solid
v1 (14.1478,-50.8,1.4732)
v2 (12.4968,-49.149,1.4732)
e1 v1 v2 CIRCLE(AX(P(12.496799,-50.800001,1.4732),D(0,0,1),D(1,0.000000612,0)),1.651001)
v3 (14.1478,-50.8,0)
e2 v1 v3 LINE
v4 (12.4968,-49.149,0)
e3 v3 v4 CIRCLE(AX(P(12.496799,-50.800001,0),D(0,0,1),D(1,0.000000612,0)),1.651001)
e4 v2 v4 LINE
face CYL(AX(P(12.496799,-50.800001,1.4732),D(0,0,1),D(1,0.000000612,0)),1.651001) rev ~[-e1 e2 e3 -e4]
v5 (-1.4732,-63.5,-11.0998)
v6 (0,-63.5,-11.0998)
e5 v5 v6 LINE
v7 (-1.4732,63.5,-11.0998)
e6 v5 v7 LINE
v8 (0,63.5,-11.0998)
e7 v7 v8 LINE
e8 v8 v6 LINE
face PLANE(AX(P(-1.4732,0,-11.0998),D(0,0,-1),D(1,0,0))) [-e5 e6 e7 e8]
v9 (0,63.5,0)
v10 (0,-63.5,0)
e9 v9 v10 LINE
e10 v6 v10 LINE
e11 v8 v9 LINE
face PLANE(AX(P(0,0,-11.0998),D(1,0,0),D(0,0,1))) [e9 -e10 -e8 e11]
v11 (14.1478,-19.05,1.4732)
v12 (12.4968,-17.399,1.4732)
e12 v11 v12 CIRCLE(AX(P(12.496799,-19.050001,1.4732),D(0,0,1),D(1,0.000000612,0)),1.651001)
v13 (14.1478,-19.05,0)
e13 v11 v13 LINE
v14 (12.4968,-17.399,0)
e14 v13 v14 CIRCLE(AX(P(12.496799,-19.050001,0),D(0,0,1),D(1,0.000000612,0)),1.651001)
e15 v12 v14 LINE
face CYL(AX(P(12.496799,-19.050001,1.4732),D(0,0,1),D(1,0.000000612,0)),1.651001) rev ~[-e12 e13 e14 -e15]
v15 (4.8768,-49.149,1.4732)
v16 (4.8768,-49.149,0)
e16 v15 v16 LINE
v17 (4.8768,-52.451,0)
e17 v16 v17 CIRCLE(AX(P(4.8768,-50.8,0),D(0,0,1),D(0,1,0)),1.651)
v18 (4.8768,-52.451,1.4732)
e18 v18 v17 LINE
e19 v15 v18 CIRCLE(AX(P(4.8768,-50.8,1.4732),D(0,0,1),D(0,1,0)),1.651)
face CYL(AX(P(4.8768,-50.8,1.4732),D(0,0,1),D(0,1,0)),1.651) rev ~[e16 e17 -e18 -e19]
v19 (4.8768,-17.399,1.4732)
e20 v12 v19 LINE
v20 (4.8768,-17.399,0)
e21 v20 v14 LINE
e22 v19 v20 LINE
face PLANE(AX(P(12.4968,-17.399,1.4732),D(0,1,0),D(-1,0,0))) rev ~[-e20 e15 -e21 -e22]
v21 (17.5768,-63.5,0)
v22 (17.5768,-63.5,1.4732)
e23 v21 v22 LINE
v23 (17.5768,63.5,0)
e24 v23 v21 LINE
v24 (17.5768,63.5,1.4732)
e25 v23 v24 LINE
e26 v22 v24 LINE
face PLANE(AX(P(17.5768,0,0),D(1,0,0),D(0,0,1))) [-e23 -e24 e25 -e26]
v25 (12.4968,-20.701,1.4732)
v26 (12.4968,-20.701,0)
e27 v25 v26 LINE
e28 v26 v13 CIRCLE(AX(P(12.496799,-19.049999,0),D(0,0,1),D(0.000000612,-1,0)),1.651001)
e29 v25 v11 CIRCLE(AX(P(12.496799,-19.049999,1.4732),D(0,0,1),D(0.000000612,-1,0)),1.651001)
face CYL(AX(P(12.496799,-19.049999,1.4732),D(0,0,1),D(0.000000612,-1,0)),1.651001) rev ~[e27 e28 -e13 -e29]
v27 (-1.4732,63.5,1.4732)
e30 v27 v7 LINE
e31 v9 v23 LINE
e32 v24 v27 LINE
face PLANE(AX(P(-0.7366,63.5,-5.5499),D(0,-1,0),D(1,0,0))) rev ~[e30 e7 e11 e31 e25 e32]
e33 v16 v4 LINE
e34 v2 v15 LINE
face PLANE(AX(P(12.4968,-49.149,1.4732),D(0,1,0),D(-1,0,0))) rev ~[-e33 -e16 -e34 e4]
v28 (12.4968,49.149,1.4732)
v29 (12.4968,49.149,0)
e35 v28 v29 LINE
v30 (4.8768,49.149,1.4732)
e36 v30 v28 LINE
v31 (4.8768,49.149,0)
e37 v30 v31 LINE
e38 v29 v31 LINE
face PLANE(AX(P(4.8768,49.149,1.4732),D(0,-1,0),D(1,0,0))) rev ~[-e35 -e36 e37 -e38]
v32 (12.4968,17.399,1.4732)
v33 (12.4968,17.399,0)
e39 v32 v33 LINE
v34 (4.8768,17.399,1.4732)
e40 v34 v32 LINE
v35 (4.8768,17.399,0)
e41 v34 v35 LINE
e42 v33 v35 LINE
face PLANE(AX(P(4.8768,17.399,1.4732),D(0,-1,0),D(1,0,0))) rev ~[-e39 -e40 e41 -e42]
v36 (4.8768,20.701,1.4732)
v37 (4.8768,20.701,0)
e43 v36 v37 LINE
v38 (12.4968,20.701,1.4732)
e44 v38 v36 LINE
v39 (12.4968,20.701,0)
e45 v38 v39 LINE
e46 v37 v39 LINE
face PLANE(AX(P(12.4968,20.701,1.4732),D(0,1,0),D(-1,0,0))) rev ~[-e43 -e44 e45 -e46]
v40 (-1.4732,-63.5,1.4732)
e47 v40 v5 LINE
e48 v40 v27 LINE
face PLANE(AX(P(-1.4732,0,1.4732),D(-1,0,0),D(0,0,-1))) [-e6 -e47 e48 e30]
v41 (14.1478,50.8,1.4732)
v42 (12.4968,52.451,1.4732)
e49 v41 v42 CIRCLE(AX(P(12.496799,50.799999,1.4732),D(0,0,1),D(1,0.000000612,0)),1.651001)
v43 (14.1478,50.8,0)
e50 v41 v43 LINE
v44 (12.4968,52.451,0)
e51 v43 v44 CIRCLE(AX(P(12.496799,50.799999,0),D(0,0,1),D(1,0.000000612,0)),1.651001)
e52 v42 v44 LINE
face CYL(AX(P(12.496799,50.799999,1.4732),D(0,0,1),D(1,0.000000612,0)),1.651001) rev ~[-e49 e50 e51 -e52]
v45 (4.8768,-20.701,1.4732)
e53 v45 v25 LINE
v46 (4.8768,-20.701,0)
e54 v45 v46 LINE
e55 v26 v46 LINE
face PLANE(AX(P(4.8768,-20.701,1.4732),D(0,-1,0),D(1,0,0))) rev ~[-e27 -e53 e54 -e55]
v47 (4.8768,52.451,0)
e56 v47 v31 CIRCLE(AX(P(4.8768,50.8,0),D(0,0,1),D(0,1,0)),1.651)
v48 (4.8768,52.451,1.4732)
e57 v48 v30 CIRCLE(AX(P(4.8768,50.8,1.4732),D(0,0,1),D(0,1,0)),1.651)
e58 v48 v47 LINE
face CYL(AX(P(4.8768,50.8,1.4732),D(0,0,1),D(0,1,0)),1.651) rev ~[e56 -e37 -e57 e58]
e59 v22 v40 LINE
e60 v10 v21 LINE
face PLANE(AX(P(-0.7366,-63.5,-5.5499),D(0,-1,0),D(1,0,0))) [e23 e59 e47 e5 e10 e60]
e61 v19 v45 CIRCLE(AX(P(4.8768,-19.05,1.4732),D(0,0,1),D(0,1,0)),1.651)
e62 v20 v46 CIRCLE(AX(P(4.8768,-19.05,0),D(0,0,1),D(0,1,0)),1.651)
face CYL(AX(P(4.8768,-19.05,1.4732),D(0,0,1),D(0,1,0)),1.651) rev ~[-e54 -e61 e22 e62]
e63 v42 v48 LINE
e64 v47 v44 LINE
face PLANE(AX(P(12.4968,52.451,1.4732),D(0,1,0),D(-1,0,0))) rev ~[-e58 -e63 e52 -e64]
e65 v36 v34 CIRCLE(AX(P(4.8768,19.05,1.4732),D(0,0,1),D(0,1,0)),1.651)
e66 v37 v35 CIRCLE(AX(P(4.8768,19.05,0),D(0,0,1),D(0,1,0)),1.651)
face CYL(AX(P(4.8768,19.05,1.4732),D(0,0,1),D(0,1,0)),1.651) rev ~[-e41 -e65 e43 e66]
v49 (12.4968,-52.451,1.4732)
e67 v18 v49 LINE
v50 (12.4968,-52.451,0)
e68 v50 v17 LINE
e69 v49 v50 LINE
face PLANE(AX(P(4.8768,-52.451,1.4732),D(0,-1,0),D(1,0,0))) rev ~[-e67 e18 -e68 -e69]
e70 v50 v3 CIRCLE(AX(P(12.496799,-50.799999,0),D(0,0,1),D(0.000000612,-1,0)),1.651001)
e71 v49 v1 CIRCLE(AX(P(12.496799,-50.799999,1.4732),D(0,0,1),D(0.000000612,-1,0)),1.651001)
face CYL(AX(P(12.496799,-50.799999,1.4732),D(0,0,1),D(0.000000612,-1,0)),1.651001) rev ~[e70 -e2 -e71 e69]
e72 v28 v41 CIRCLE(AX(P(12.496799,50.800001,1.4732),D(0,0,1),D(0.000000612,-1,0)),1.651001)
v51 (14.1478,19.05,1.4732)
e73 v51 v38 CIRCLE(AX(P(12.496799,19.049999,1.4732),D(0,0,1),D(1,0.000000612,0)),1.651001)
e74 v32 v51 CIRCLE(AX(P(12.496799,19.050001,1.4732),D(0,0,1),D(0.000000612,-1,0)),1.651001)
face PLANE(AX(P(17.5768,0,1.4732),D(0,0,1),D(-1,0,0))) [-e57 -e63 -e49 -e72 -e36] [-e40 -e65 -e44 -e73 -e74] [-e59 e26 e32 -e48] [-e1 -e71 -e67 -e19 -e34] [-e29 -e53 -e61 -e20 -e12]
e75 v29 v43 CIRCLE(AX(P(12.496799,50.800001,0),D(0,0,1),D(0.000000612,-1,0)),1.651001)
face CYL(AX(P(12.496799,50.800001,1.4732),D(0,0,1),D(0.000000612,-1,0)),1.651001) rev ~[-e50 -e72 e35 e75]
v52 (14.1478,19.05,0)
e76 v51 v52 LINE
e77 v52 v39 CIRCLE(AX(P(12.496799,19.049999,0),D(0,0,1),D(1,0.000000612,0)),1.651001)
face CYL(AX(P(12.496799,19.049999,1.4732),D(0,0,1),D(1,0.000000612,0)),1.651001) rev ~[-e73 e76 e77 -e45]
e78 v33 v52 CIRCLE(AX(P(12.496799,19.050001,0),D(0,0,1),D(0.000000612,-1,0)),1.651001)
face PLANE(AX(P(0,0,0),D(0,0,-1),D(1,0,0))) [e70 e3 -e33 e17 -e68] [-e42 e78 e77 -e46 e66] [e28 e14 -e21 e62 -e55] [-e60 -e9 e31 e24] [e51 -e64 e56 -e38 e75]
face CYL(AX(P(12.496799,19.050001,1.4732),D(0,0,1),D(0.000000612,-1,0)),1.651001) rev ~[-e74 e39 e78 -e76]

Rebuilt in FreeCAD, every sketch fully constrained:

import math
import FreeCAD as App
import Part
import Sketcher
Q = App.Units.Quantity

doc = App.newDocument("Part")
body = doc.addObject("PartDesign::Body", "Body")

# Sketch on XZ plane
sketch1 = doc.addObject("Sketcher::SketchObject", "Sketch")
body.addObject(sketch1)
sketch1.AttachmentSupport = (doc.XZ_Plane, [""])
sketch1.MapMode = "FlatFace"
sketch1.addGeometry(Part.LineSegment(App.Vector(-1.5, -11.1, 0), App.Vector(0, -11.1, 0)), False)
sketch1.addGeometry(Part.LineSegment(App.Vector(0, -11.1, 0), App.Vector(0, 0, 0)), False)
sketch1.addGeometry(Part.LineSegment(App.Vector(0, 0, 0), App.Vector(17.6, 0, 0)), False)
sketch1.addGeometry(Part.LineSegment(App.Vector(17.6, 0, 0), App.Vector(17.6, 1.5, 0)), False)
sketch1.addGeometry(Part.LineSegment(App.Vector(17.6, 1.5, 0), App.Vector(-1.5, 1.5, 0)), False)
sketch1.addGeometry(Part.LineSegment(App.Vector(-1.5, 1.5, 0), App.Vector(-1.5, -11.1, 0)), False)
sketch1.addConstraint(Sketcher.Constraint("Coincident", 0, 2, 1, 1))
sketch1.addConstraint(Sketcher.Constraint("Coincident", 1, 2, 2, 1))
sketch1.addConstraint(Sketcher.Constraint("Coincident", 2, 2, 3, 1))
sketch1.addConstraint(Sketcher.Constraint("Coincident", 3, 2, 4, 1))
sketch1.addConstraint(Sketcher.Constraint("Coincident", 4, 2, 5, 1))
sketch1.addConstraint(Sketcher.Constraint("Coincident", 5, 2, 0, 1))
sketch1.addConstraint(Sketcher.Constraint("Horizontal", 0))
sketch1.addConstraint(Sketcher.Constraint("Vertical", 1))
sketch1.addConstraint(Sketcher.Constraint("Horizontal", 2))
sketch1.addConstraint(Sketcher.Constraint("Vertical", 3))
sketch1.addConstraint(Sketcher.Constraint("Horizontal", 4))
sketch1.addConstraint(Sketcher.Constraint("Vertical", 5))
sketch1.addConstraint(Sketcher.Constraint("Coincident", 1, 2, -1, 1))
sketch1.addConstraint(Sketcher.Constraint("Equal", 0, 3))
sketch1.addConstraint(Sketcher.Constraint("DistanceX", 4, 2, 4, 1, Q("0.75 in")))
sketch1.addConstraint(Sketcher.Constraint("DistanceX", 0, 1, 0, 2, Q("0.058 in")))
sketch1.addConstraint(Sketcher.Constraint("DistanceY", 1, 1, 1, 2, Q("0.437 in")))
pad1 = doc.addObject("PartDesign::Pad", "Pad")
body.addObject(pad1)
pad1.Profile = sketch1
pad1.Length = Q("5 in")
pad1.Midplane = True

# Sketch on XY plane
sketch2 = doc.addObject("Sketcher::SketchObject", "Sketch001")
body.addObject(sketch2)
sketch2.AttachmentSupport = (doc.XY_Plane, [""])
sketch2.MapMode = "FlatFace"
sketch2.AttachmentOffset = App.Placement(App.Vector(0, 0, 0.058 * 25.4), App.Rotation())
sketch2.addGeometry(Part.LineSegment(App.Vector(12.5, -49.1, 0), App.Vector(4.9, -49.1, 0)), False)
sketch2.addGeometry(Part.ArcOfCircle(Part.Circle(App.Vector(4.9, -50.8, 0), App.Vector(0, 0, 1), 1.7), math.radians(90), math.radians(270)), False)
sketch2.addGeometry(Part.LineSegment(App.Vector(4.9, -52.5, 0), App.Vector(12.5, -52.5, 0)), False)
sketch2.addGeometry(Part.ArcOfCircle(Part.Circle(App.Vector(12.5, -50.8, 0), App.Vector(0, 0, 1), 1.7), math.radians(-90), math.radians(0)), False)
sketch2.addGeometry(Part.ArcOfCircle(Part.Circle(App.Vector(12.5, -50.8, 0), App.Vector(0, 0, 1), 1.7), math.radians(0), math.radians(90)), False)
sketch2.addGeometry(Part.ArcOfCircle(Part.Circle(App.Vector(12.5, -19.1, 0), App.Vector(0, 0, 1), 1.7), math.radians(0), math.radians(90)), False)
sketch2.addGeometry(Part.LineSegment(App.Vector(12.5, -17.4, 0), App.Vector(4.9, -17.4, 0)), False)
sketch2.addGeometry(Part.ArcOfCircle(Part.Circle(App.Vector(4.9, -19.1, 0), App.Vector(0, 0, 1), 1.7), math.radians(90), math.radians(270)), False)
sketch2.addGeometry(Part.LineSegment(App.Vector(4.9, -20.7, 0), App.Vector(12.5, -20.7, 0)), False)
sketch2.addGeometry(Part.ArcOfCircle(Part.Circle(App.Vector(12.5, -19, 0), App.Vector(0, 0, 1), 1.7), math.radians(-90), math.radians(0)), False)
sketch2.addGeometry(Part.ArcOfCircle(Part.Circle(App.Vector(12.5, 19.1, 0), App.Vector(0, 0, 1), 1.7), math.radians(-90), math.radians(0)), False)
sketch2.addGeometry(Part.ArcOfCircle(Part.Circle(App.Vector(12.5, 19, 0), App.Vector(0, 0, 1), 1.7), math.radians(0), math.radians(90)), False)
sketch2.addGeometry(Part.LineSegment(App.Vector(12.5, 20.7, 0), App.Vector(4.9, 20.7, 0)), False)
sketch2.addGeometry(Part.ArcOfCircle(Part.Circle(App.Vector(4.9, 19.1, 0), App.Vector(0, 0, 1), 1.7), math.radians(90), math.radians(270)), False)
sketch2.addGeometry(Part.LineSegment(App.Vector(4.9, 17.4, 0), App.Vector(12.5, 17.4, 0)), False)
sketch2.addGeometry(Part.ArcOfCircle(Part.Circle(App.Vector(12.5, 50.8, 0), App.Vector(0, 0, 1), 1.7), math.radians(-90), math.radians(0)), False)
sketch2.addGeometry(Part.ArcOfCircle(Part.Circle(App.Vector(12.5, 50.8, 0), App.Vector(0, 0, 1), 1.7), math.radians(0), math.radians(90)), False)
sketch2.addGeometry(Part.LineSegment(App.Vector(12.5, 52.5, 0), App.Vector(4.9, 52.5, 0)), False)
sketch2.addGeometry(Part.ArcOfCircle(Part.Circle(App.Vector(4.9, 50.8, 0), App.Vector(0, 0, 1), 1.7), math.radians(90), math.radians(270)), False)
sketch2.addGeometry(Part.LineSegment(App.Vector(4.9, 49.1, 0), App.Vector(12.5, 49.1, 0)), False)
sketch2.addConstraint(Sketcher.Constraint("Tangent", 0, 2, 1, 1))
sketch2.addConstraint(Sketcher.Constraint("Tangent", 1, 2, 2, 1))
sketch2.addConstraint(Sketcher.Constraint("Tangent", 2, 2, 3, 1))
sketch2.addConstraint(Sketcher.Constraint("Tangent", 3, 2, 4, 1))
sketch2.addConstraint(Sketcher.Constraint("Tangent", 4, 2, 0, 1))
sketch2.addConstraint(Sketcher.Constraint("Tangent", 5, 2, 6, 1))
sketch2.addConstraint(Sketcher.Constraint("Tangent", 6, 2, 7, 1))
sketch2.addConstraint(Sketcher.Constraint("Tangent", 7, 2, 8, 1))
sketch2.addConstraint(Sketcher.Constraint("Tangent", 8, 2, 9, 1))
sketch2.addConstraint(Sketcher.Constraint("Tangent", 9, 2, 5, 1))
sketch2.addConstraint(Sketcher.Constraint("Tangent", 10, 2, 11, 1))
sketch2.addConstraint(Sketcher.Constraint("Tangent", 11, 2, 12, 1))
sketch2.addConstraint(Sketcher.Constraint("Tangent", 12, 2, 13, 1))
sketch2.addConstraint(Sketcher.Constraint("Tangent", 13, 2, 14, 1))
sketch2.addConstraint(Sketcher.Constraint("Tangent", 14, 2, 10, 1))
sketch2.addConstraint(Sketcher.Constraint("Tangent", 15, 2, 16, 1))
sketch2.addConstraint(Sketcher.Constraint("Tangent", 16, 2, 17, 1))
sketch2.addConstraint(Sketcher.Constraint("Tangent", 17, 2, 18, 1))
sketch2.addConstraint(Sketcher.Constraint("Tangent", 18, 2, 19, 1))
sketch2.addConstraint(Sketcher.Constraint("Tangent", 19, 2, 15, 1))
sketch2.addConstraint(Sketcher.Constraint("Horizontal", 0))
sketch2.addConstraint(Sketcher.Constraint("Horizontal", 2))
sketch2.addConstraint(Sketcher.Constraint("Horizontal", 6))
sketch2.addConstraint(Sketcher.Constraint("Horizontal", 8))
sketch2.addConstraint(Sketcher.Constraint("Horizontal", 12))
sketch2.addConstraint(Sketcher.Constraint("Horizontal", 14))
sketch2.addConstraint(Sketcher.Constraint("Horizontal", 17))
sketch2.addConstraint(Sketcher.Constraint("Horizontal", 19))
sketch2.addConstraint(Sketcher.Constraint("Equal", 1, 3))
sketch2.addConstraint(Sketcher.Constraint("Equal", 4, 5))
sketch2.addConstraint(Sketcher.Constraint("Equal", 5, 7))
sketch2.addConstraint(Sketcher.Constraint("Equal", 9, 10))
sketch2.addConstraint(Sketcher.Constraint("Equal", 10, 11))
sketch2.addConstraint(Sketcher.Constraint("Equal", 13, 15))
sketch2.addConstraint(Sketcher.Constraint("Equal", 15, 16))
sketch2.addConstraint(Sketcher.Constraint("Symmetric", 5, 3, 10, 3, -1))
sketch2.addConstraint(Sketcher.Constraint("Symmetric", 3, 3, 15, 3, -1))
sketch2.addConstraint(Sketcher.Constraint("Horizontal", 4, 3, 3, 2))
sketch2.addConstraint(Sketcher.Constraint("Horizontal", 7, 3, 9, 2))
sketch2.addConstraint(Sketcher.Constraint("Horizontal", 13, 3, 10, 2))
sketch2.addConstraint(Sketcher.Constraint("Horizontal", 18, 3, 15, 2))
sketch2.addConstraint(Sketcher.Constraint("Vertical", 4, 3, 5, 3))
sketch2.addConstraint(Sketcher.Constraint("Vertical", 1, 3, 7, 3))
sketch2.addConstraint(Sketcher.Constraint("Vertical", 7, 3, 13, 3))
sketch2.addConstraint(Sketcher.Constraint("Vertical", 13, 3, 18, 3))
sketch2.addConstraint(Sketcher.Constraint("DistanceX", 0, 2, 0, 1, Q("0.3 in")))
sketch2.addConstraint(Sketcher.Constraint("DistanceY", 1, 3, -1, 1, Q("2 in")))
sketch2.addConstraint(Sketcher.Constraint("Radius", 1, Q("0.065 in")))
sketch2.addConstraint(Sketcher.Constraint("DistanceY", 9, 3, 10, 3, Q("1.5 in")))
sketch2.addConstraint(Sketcher.Constraint("DistanceX", -1, 1, 1, 3, Q("0.192 in")))
pocket1 = doc.addObject("PartDesign::Pocket", "Pocket")
body.addObject(pocket1)
pocket1.Profile = sketch2
pocket1.Type = "ThroughAll"

doc.recompute()
